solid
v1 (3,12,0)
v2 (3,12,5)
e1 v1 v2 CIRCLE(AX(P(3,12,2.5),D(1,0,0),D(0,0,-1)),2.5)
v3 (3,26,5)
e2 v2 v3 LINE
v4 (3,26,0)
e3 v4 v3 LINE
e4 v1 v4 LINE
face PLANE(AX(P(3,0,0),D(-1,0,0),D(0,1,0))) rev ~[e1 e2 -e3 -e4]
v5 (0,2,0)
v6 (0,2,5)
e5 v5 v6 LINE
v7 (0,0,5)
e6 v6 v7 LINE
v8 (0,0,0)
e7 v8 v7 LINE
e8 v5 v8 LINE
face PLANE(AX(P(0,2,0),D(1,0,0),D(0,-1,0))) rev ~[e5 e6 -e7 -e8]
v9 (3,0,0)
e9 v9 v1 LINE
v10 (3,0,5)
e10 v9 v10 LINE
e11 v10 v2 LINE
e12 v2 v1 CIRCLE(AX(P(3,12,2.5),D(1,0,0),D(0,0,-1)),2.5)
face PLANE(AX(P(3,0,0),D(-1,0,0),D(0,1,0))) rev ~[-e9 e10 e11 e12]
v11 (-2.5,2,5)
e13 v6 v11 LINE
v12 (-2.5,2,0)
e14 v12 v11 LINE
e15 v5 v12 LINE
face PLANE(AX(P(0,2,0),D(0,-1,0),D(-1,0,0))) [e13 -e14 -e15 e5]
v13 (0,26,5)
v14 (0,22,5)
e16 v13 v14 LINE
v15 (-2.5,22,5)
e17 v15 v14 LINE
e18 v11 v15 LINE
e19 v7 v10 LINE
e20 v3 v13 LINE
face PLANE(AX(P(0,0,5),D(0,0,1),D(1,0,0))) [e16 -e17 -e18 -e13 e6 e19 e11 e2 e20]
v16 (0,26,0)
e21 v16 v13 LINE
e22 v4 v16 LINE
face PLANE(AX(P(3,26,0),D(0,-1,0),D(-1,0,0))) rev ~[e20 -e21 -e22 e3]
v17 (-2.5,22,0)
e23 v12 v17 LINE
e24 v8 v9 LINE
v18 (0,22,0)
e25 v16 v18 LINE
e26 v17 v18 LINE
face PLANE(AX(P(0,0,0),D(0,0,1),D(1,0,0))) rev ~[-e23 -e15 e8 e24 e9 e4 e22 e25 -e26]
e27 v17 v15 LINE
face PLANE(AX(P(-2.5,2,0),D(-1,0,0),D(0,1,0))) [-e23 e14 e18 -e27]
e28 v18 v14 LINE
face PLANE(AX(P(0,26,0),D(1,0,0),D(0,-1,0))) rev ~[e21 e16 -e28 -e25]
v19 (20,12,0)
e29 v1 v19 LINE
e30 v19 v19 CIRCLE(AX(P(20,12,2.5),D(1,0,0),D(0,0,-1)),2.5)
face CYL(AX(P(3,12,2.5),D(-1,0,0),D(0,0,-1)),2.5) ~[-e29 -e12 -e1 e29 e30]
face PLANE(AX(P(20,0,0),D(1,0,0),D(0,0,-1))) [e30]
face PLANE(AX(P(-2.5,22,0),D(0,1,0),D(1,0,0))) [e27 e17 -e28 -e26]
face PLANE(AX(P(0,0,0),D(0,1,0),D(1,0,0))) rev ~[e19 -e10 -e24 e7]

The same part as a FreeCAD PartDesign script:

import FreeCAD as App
import Part
import Sketcher

V = App.Vector
Q = App.Units.Quantity


def add_polygon(sketch, points):
    """Adds a closed chain of lines whose ends are joined by coincident constraints."""
    first, n = sketch.GeometryCount, len(points)
    for a, b in zip(points, points[1:] + points[:1]):
        sketch.addGeometry(Part.LineSegment(App.Vector(*a, 0), App.Vector(*b, 0)), False)
    for i in range(n):
        sketch.addConstraint(Sketcher.Constraint("Coincident", first + i, 2, first + (i + 1) % n, 1))

doc = App.newDocument("Part")
body = doc.addObject("PartDesign::Body", "Body")

# Sketch on XY plane
sketch1 = body.newObject("Sketcher::SketchObject", "Sketch")
sketch1.AttachmentSupport = (doc.getObject("XY_Plane"), [""])
sketch1.MapMode = "FlatFace"
add_polygon(sketch1, [(0, 2), (0, 0), (3, 0), (3, 26), (0, 26), (0, 22), (-2.5, 22), (-2.5, 2)])  # lines 0-7
sketch1.addConstraint([
    Sketcher.Constraint("Vertical", 0),
    Sketcher.Constraint("Horizontal", 1),
    Sketcher.Constraint("Vertical", 2),
    Sketcher.Constraint("Horizontal", 3),
    Sketcher.Constraint("Vertical", 4),
    Sketcher.Constraint("Horizontal", 5),
    Sketcher.Constraint("Vertical", 6),
    Sketcher.Constraint("Horizontal", 7),
    Sketcher.Constraint("Coincident", 0, 2, -1, 1),
    Sketcher.Constraint("PointOnObject", 3, 2, -2),
    Sketcher.Constraint("DistanceX", 1, 1, 1, 2, Q("3 mm")),
    Sketcher.Constraint("DistanceY", 0, 2, 0, 1, Q("2 mm")),
    Sketcher.Constraint("DistanceY", 2, 1, 2, 2, Q("26 mm")),
    Sketcher.Constraint("DistanceY", 6, 2, 6, 1, Q("20 mm")),
    Sketcher.Constraint("DistanceX", 5, 2, 5, 1, Q("2.5 mm")),
])
pad1 = body.newObject("PartDesign::Pad", "Pad")
pad1.Profile = sketch1
pad1.Length = 5

# Sketch on YZ plane
sketch2 = body.newObject("Sketcher::SketchObject", "Sketch001")
sketch2.AttachmentSupport = (doc.getObject("YZ_Plane"), [""])
sketch2.MapMode = "FlatFace"
sketch2.AttachmentOffset = App.Placement(V(0, 0, 3), App.Rotation())
sketch2.addGeometry(Part.Circle(V(12, 2.5, 0), V(0, 0, 1), 2.5), False)
sketch2.addConstraint([
    Sketcher.Constraint("Diameter", 0, Q("5 mm")),
    Sketcher.Constraint("DistanceX", -1, 1, 0, 3, Q("12 mm")),
    Sketcher.Constraint("DistanceY", -1, 1, 0, 3, Q("2.5 mm")),
])
pad2 = body.newObject("PartDesign::Pad", "Pad001")
pad2.Profile = sketch2
pad2.Length = 17

doc.recompute()
